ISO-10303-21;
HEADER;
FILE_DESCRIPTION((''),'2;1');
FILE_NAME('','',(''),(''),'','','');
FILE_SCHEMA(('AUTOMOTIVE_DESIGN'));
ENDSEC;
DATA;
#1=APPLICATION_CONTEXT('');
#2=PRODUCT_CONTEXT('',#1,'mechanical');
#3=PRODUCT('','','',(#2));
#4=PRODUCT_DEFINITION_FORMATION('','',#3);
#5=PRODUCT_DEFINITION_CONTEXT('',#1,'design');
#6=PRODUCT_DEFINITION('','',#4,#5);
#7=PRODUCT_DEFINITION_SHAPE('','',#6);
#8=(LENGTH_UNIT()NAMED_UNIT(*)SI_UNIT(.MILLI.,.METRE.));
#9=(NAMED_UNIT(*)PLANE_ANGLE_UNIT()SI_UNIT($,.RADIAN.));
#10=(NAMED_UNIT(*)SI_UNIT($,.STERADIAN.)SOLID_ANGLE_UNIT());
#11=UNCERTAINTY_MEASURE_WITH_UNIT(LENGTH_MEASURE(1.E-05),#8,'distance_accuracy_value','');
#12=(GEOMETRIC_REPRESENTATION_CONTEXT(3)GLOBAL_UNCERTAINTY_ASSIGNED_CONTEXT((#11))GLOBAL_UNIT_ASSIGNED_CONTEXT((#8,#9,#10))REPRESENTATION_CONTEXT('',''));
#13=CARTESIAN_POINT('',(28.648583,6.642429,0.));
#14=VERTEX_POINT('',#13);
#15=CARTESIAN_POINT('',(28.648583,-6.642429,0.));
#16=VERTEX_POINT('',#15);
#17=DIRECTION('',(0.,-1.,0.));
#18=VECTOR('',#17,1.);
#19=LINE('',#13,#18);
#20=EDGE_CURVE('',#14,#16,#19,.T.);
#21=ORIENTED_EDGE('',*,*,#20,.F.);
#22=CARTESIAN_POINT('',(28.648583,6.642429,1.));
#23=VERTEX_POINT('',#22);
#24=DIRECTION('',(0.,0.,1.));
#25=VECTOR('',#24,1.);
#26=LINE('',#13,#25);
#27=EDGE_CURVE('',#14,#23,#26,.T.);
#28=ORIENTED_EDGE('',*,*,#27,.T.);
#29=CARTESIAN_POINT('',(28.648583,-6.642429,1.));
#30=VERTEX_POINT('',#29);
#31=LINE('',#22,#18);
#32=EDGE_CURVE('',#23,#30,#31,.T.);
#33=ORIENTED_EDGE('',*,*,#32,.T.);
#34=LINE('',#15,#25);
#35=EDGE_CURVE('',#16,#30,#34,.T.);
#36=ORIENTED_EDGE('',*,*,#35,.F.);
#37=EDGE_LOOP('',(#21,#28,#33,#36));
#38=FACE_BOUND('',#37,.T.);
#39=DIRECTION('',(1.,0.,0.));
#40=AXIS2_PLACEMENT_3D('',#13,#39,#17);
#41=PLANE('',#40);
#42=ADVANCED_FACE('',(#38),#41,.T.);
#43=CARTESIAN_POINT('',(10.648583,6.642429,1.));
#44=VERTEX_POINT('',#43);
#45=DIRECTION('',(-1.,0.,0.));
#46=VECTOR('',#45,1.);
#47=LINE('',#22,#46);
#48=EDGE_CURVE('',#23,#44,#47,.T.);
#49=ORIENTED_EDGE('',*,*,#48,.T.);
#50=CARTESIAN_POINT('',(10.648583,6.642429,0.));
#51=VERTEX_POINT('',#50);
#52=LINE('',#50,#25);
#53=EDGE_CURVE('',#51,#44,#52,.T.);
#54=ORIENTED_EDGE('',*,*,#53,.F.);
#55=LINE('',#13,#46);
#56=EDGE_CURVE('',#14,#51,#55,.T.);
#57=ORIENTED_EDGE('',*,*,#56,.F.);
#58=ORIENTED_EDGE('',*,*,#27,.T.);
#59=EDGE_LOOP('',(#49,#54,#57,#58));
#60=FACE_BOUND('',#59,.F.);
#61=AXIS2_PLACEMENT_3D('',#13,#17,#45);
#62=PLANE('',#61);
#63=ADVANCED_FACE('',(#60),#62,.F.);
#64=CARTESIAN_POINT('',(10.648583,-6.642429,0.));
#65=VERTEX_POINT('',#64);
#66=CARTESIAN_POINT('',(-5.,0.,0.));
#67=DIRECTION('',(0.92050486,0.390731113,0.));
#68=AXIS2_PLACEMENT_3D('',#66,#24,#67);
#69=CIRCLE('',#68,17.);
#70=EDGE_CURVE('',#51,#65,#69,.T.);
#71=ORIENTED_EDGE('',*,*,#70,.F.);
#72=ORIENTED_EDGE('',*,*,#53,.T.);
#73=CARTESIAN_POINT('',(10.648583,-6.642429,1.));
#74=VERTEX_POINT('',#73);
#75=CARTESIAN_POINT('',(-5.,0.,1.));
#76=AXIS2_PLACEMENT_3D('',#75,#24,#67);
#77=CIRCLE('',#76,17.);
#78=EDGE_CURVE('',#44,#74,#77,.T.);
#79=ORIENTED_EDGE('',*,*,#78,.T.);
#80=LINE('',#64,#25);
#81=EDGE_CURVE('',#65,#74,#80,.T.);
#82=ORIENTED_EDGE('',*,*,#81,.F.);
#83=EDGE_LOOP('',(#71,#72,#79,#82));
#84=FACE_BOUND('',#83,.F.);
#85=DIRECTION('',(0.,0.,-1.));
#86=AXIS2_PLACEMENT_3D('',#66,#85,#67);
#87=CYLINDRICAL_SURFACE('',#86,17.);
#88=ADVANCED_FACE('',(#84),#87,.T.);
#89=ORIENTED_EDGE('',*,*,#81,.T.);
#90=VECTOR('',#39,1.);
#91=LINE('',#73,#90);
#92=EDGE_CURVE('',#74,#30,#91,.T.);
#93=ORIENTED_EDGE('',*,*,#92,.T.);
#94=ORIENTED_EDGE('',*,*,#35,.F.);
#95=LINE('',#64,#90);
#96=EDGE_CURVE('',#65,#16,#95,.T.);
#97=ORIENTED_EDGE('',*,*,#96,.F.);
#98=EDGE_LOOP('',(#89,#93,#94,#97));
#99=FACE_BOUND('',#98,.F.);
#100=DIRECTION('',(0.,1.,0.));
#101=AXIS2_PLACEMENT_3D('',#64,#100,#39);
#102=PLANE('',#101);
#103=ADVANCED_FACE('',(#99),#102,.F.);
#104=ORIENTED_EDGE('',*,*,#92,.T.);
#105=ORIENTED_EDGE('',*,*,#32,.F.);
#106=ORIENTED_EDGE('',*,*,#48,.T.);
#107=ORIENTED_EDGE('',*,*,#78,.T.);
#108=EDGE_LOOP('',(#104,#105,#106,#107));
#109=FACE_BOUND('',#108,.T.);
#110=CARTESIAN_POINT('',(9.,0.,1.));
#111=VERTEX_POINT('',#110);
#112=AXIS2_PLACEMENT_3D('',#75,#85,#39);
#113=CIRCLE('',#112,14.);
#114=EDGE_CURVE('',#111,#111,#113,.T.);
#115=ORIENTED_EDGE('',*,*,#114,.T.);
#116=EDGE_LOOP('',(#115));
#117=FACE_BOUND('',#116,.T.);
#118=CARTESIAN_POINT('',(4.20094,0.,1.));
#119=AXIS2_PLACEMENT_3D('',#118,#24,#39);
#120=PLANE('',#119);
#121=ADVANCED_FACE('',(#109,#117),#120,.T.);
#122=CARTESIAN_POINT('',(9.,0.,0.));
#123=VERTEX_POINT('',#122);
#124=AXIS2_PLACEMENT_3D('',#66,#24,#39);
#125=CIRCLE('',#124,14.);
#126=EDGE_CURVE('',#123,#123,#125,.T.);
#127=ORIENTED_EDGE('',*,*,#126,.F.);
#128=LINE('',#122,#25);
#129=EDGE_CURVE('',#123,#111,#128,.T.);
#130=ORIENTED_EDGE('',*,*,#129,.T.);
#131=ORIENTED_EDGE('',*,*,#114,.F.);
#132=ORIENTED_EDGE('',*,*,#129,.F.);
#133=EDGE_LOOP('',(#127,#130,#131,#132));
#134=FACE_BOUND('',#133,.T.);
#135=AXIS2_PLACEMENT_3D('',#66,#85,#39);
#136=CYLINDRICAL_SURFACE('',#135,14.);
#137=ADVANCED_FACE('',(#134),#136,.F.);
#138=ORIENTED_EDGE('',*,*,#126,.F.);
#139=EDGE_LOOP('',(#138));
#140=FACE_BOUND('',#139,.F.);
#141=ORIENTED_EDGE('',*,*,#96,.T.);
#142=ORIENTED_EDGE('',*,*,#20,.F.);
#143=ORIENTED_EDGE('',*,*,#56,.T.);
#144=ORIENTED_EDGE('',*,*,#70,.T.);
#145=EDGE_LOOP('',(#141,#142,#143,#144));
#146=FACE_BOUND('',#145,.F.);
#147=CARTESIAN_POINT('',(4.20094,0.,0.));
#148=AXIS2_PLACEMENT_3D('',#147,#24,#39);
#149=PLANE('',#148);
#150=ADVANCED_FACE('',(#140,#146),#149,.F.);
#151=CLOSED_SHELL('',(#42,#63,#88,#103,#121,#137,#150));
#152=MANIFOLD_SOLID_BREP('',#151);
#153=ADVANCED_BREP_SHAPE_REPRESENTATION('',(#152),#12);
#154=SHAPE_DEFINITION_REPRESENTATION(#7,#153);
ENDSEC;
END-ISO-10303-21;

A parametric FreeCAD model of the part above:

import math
import FreeCAD as App
import Part
import Sketcher
from FreeCAD import Vector

doc = App.newDocument("Part")
body = doc.addObject("PartDesign::Body", "Body")

# Sketch on XY plane
sketch1 = body.newObject("Sketcher::SketchObject", "Sketch")
sketch1.AttachmentSupport = (doc.getObject("XY_Plane"), [""])
sketch1.MapMode = "FlatFace"
sketch1.addGeometry([
    Part.LineSegment(Vector(29, 7, 0), Vector(11, 7, 0)),
    Part.ArcOfCircle(Part.Circle(Vector(-5, 0, 0), Vector(0, 0, 1), 17), math.radians(23), math.radians(337)),
    Part.LineSegment(Vector(11, -7, 0), Vector(29, -7, 0)),
    Part.LineSegment(Vector(29, -7, 0), Vector(29, 7, 0)),
], False)
sketch1.addConstraint([
    Sketcher.Constraint("Coincident", 0, 2, 1, 1),
    Sketcher.Constraint("Coincident", 1, 2, 2, 1),
    Sketcher.Constraint("Coincident", 2, 2, 3, 1),
    Sketcher.Constraint("Coincident", 3, 2, 0, 1),
    Sketcher.Constraint("Horizontal", 0),
    Sketcher.Constraint("Horizontal", 2),
    Sketcher.Constraint("Vertical", 3),
    Sketcher.Constraint("Symmetric", 0, 2, 1, 2, -1),
    Sketcher.Constraint("Radius", 1, 17.0),
    Sketcher.Constraint("DistanceX", 0, 2, 0, 1, 18.0),
    Sketcher.Constraint("DistanceX", 1, 3, -1, 1, 5.0),
    Sketcher.Constraint("DistanceY", 3, 1, 3, 2, 13.284858),
])
pad1 = body.newObject("PartDesign::Pad", "Pad")
pad1.Profile = sketch1
pad1.Length = 1

# Sketch on XY plane
sketch2 = body.newObject("Sketcher::SketchObject", "Sketch001")
sketch2.AttachmentSupport = (doc.getObject("XY_Plane"), [""])
sketch2.MapMode = "FlatFace"
sketch2.addGeometry(Part.Circle(Vector(-5, 0, 0), Vector(0, 0, 1), 14), False)
sketch2.addConstraint([
    Sketcher.Constraint("PointOnObject", 0, 3, -1),
    Sketcher.Constraint("Diameter", 0, 28.0),
    Sketcher.Constraint("DistanceX", 0, 3, -1, 1, 5.0),
])
pocket1 = body.newObject("PartDesign::Pocket", "Pocket")
pocket1.Profile = sketch2
pocket1.Type = "ThroughAll"
pocket1.Reversed = True

doc.recompute()
